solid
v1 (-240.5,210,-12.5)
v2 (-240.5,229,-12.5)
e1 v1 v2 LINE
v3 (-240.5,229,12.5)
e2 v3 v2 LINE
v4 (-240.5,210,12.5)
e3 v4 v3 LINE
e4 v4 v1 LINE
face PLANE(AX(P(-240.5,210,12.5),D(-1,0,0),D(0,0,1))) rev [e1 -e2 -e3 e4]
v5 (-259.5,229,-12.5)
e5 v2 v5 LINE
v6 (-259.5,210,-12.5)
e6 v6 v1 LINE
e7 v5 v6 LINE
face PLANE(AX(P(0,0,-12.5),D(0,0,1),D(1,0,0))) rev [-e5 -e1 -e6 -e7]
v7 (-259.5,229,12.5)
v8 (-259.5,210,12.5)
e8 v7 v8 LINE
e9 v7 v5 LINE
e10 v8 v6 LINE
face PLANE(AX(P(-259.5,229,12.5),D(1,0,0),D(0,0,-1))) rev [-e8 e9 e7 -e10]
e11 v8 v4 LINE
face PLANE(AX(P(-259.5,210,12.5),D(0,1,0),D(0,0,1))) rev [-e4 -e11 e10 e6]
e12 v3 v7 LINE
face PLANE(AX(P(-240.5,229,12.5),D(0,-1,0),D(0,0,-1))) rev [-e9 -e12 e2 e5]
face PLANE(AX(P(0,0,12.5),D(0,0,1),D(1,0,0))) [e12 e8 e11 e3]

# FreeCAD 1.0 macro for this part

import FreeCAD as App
import Part
import Sketcher
from FreeCAD import Vector
Q = App.Units.Quantity

doc = App.newDocument("Part")
body = doc.addObject("PartDesign::Body", "Body")

# Sketch on XY plane
sketch1 = body.newObject("Sketcher::SketchObject", "Sketch")
sketch1.AttachmentSupport = (doc.getObject("XY_Plane"), [""])
sketch1.MapMode = "FlatFace"
sketch1.addGeometry([
    Part.LineSegment(Vector(-260, 229, 0), Vector(-260, 210, 0)),
    Part.LineSegment(Vector(-260, 210, 0), Vector(-240, 210, 0)),
    Part.LineSegment(Vector(-240, 210, 0), Vector(-240, 229, 0)),
    Part.LineSegment(Vector(-240, 229, 0), Vector(-260, 229, 0)),
], False)
sketch1.addConstraint([
    Sketcher.Constraint("Coincident", 0, 2, 1, 1),
    Sketcher.Constraint("Coincident", 1, 2, 2, 1),
    Sketcher.Constraint("Coincident", 2, 2, 3, 1),
    Sketcher.Constraint("Coincident", 3, 2, 0, 1),
    Sketcher.Constraint("Vertical", 0),
    Sketcher.Constraint("Horizontal", 1),
    Sketcher.Constraint("Vertical", 2),
    Sketcher.Constraint("Horizontal", 3),
    Sketcher.Constraint("Equal", 3, 0),
    Sketcher.Constraint("DistanceX", 1, 1, 1, 2, Q("19 mm")),
    Sketcher.Constraint("DistanceY", -1, 1, 0, 2, Q("210 mm")),
    Sketcher.Constraint("DistanceX", 0, 2, -1, 1, Q("259.5 mm")),
])
pad1 = body.newObject("PartDesign::Pad", "Pad")
pad1.Profile = sketch1
pad1.Length = 25
pad1.Midplane = True

doc.recompute()
